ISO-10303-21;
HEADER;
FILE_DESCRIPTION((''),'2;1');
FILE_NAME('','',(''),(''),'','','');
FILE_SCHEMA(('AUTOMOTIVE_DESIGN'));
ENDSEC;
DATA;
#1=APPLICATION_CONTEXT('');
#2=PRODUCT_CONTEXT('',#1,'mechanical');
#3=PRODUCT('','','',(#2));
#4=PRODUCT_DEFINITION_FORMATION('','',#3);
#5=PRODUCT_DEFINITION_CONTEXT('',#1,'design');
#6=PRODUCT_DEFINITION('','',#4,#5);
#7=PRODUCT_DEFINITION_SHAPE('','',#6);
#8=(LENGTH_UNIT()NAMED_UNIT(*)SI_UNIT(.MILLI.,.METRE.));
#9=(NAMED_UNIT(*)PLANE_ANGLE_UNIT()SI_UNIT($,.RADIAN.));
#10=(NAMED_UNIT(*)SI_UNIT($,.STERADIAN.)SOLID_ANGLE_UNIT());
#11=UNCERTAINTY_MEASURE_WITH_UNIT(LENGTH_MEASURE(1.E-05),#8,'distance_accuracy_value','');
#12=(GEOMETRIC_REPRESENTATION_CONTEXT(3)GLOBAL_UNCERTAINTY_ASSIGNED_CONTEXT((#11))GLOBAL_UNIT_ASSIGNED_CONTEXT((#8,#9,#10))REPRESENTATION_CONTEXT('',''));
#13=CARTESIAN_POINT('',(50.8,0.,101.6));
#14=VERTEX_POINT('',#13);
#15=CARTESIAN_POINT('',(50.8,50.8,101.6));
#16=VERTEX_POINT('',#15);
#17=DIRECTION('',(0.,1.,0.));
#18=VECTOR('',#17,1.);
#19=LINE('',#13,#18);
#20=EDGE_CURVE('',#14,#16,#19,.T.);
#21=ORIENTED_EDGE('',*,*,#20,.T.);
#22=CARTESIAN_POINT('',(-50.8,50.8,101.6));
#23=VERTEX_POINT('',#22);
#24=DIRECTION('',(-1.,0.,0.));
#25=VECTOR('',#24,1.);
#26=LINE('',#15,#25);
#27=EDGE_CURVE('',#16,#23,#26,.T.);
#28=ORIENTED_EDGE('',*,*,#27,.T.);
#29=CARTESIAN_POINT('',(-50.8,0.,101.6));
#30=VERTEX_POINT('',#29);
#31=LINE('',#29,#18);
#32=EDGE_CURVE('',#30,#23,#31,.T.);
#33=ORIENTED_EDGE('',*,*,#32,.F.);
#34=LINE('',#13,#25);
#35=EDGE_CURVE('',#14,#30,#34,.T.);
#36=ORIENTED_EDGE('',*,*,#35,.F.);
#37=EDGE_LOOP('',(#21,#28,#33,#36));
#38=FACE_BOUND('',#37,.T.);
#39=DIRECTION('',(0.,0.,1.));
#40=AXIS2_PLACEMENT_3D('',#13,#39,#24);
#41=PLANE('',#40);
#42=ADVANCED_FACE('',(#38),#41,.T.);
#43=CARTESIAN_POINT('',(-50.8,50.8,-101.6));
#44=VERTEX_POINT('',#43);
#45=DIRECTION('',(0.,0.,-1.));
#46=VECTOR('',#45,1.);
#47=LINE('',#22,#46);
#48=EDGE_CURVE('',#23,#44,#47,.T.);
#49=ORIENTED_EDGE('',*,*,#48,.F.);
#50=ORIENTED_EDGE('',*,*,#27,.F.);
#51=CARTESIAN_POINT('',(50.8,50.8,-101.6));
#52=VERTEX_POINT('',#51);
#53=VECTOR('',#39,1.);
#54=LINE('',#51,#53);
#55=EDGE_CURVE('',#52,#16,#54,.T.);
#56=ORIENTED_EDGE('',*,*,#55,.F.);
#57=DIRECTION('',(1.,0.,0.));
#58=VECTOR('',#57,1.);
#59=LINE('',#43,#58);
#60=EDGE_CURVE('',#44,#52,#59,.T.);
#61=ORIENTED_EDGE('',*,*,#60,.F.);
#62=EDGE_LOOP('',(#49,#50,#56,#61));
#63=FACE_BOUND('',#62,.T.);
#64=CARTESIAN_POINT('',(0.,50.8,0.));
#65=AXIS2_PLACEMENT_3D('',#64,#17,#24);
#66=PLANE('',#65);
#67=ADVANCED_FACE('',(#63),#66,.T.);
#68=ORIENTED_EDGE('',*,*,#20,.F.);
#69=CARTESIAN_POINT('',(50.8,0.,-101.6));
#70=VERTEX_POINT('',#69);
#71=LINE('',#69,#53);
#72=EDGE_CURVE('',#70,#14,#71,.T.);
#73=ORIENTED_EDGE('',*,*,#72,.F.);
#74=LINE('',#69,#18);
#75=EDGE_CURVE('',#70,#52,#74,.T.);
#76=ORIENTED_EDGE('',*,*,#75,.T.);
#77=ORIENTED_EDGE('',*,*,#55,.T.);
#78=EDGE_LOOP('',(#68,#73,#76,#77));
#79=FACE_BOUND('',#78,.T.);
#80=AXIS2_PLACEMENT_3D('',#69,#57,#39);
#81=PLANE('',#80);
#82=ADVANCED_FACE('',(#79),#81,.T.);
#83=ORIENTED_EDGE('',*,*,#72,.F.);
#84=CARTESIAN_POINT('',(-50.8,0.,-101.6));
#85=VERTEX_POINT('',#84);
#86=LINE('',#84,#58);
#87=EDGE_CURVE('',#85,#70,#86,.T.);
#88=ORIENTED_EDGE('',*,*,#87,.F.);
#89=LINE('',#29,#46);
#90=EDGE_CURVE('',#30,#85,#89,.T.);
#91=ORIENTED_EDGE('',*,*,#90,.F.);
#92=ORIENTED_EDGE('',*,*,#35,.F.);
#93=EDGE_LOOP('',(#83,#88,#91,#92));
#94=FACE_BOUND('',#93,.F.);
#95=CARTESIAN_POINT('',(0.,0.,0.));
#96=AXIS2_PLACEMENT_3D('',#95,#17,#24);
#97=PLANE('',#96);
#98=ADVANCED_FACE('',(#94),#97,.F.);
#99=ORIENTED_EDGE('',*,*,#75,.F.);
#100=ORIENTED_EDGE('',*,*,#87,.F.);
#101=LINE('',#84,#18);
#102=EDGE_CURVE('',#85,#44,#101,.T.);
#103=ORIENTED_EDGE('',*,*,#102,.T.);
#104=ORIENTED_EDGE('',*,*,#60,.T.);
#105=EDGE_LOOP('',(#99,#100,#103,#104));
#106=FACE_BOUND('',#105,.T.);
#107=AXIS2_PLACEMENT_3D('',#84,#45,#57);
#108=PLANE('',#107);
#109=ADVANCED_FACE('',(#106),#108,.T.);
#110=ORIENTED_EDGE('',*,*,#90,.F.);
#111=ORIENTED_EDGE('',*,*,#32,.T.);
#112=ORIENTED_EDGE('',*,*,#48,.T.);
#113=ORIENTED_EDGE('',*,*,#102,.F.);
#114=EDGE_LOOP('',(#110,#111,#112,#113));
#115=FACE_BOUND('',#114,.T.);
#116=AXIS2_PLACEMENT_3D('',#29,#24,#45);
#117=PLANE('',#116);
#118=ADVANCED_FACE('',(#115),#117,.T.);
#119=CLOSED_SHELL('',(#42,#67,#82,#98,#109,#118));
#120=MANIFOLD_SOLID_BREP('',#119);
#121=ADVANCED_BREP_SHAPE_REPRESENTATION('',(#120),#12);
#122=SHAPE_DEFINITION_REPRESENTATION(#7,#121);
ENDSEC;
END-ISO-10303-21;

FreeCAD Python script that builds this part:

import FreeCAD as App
import Part
import Sketcher

V = App.Vector
Q = App.Units.Quantity

doc = App.newDocument("Part")
body = doc.addObject("PartDesign::Body", "Body")

# Sketch on XZ plane
sketch1 = body.newObject("Sketcher::SketchObject", "Sketch")
sketch1.AttachmentSupport = (doc.getObject("XZ_Plane"), [""])
sketch1.MapMode = "FlatFace"
sketch1.addGeometry([
    Part.LineSegment(V(-51, 102, 0), V(51, 102, 0)),
    Part.LineSegment(V(51, 102, 0), V(51, -102, 0)),
    Part.LineSegment(V(51, -102, 0), V(-51, -102, 0)),
    Part.LineSegment(V(-51, -102, 0), V(-51, 102, 0)),
], False)
sketch1.addConstraint([
    Sketcher.Constraint("Coincident", 0, 2, 1, 1),
    Sketcher.Constraint("Coincident", 1, 2, 2, 1),
    Sketcher.Constraint("Coincident", 2, 2, 3, 1),
    Sketcher.Constraint("Coincident", 3, 2, 0, 1),
    Sketcher.Constraint("Horizontal", 0),
    Sketcher.Constraint("Vertical", 1),
    Sketcher.Constraint("Horizontal", 2),
    Sketcher.Constraint("Vertical", 3),
    Sketcher.Constraint("Symmetric", 0, 2, 2, 2, -1, 1),
    Sketcher.Constraint("DistanceX", 0, 1, 0, 2, Q("4 in")),
    Sketcher.Constraint("DistanceY", 1, 2, 1, 1, Q("8 in")),
])
pad1 = body.newObject("PartDesign::Pad", "Pad")
pad1.Profile = sketch1
pad1.Length = Q("2 in")
pad1.Reversed = True

doc.recompute()
